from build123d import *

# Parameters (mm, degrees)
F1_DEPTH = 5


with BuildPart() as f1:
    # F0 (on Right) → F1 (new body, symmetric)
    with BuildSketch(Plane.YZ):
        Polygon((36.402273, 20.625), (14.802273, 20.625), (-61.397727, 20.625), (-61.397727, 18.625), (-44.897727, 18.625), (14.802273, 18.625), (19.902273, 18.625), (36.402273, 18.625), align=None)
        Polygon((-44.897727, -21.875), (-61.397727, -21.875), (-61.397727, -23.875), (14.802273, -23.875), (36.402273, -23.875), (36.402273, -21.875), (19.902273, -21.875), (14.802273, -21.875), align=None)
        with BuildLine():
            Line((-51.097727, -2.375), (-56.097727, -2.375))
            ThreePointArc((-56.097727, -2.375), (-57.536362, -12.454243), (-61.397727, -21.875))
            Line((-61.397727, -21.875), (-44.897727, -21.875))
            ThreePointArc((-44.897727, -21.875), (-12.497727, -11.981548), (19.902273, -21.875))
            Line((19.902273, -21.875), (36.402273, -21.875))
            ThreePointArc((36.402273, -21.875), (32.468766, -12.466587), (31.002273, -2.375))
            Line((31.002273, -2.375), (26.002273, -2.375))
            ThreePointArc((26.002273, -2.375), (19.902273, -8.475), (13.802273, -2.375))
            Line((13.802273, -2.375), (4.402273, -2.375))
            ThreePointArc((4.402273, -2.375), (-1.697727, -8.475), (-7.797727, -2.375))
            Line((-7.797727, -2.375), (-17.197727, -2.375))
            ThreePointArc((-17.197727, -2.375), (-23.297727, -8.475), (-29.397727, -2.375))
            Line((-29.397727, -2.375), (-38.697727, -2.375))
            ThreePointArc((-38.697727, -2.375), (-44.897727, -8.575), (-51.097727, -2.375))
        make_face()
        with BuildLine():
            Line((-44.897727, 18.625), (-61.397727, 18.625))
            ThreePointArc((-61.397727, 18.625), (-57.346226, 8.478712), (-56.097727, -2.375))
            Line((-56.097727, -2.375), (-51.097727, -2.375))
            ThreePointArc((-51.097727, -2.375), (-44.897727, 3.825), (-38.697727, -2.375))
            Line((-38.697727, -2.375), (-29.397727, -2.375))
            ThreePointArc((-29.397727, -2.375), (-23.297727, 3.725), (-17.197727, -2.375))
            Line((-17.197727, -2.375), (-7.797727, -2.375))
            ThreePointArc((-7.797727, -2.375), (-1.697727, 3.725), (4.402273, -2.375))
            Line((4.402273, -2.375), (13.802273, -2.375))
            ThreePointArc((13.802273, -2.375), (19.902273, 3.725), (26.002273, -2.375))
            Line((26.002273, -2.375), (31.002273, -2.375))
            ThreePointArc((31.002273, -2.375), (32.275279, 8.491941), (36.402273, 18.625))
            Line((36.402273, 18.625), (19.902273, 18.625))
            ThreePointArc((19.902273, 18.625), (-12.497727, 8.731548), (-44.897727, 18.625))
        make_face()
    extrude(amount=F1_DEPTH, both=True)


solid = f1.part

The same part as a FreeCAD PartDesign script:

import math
import FreeCAD as App
import Part
import Sketcher

doc = App.newDocument("Part")
body = doc.addObject("PartDesign::Body", "Body")

# Sketch on YZ plane
sketch1 = doc.addObject("Sketcher::SketchObject", "Sketch")
body.addObject(sketch1)
sketch1.AttachmentSupport = (doc.YZ_Plane, [""])
sketch1.MapMode = "FlatFace"
sketch1.addGeometry([
    Part.LineSegment(App.Vector(36.402273, 20.625, 0), App.Vector(-61.397727, 20.625, 0)),  # 0
    Part.LineSegment(App.Vector(-61.397727, 20.625, 0), App.Vector(-61.397727, 18.625, 0)),  # 1
    Part.ArcOfCircle(Part.Circle(App.Vector(-97.379807, -1.625001, 0), App.Vector(0, 0, 1), 41.288892), math.radians(-1.040816), math.radians(29.369946)),  # 2
    Part.ArcOfCircle(Part.Circle(App.Vector(-97.379803, -1.625, 0), App.Vector(0, 0, 1), 41.288889), math.radians(-29.369948), math.radians(-1.040818)),  # 3
    Part.LineSegment(App.Vector(-61.397727, -21.875, 0), App.Vector(-61.397727, -23.875, 0)),  # 4
    Part.LineSegment(App.Vector(-61.397727, -23.875, 0), App.Vector(36.402273, -23.875, 0)),  # 5
    Part.LineSegment(App.Vector(36.402273, -23.875, 0), App.Vector(36.402273, -21.875, 0)),  # 6
    Part.ArcOfCircle(Part.Circle(App.Vector(71.618941, -1.625, 0), App.Vector(0, 0, 1), 40.623592), math.radians(-178.942134), math.radians(-150.100589)),  # 7
    Part.ArcOfCircle(Part.Circle(App.Vector(71.618934, -1.624998, 0), App.Vector(0, 0, 1), 40.623584), math.radians(150.100586), math.radians(181.057867)),  # 8
    Part.LineSegment(App.Vector(36.402273, 18.625, 0), App.Vector(36.402273, 20.625, 0)),  # 9
    Part.LineSegment(App.Vector(-44.897727, 18.625, 0), App.Vector(19.902273, 18.625, 0)),  # 10
    Part.ArcOfCircle(Part.Circle(App.Vector(-12.497727, 66.731546, 0), App.Vector(0, 0, 1), 57.999998), math.radians(-123.960464), math.radians(-56.039536)),  # 11
    Part.Circle(App.Vector(-44.897727, -2.375, 0), App.Vector(0, 0, 1), 6.2),  # 12
    Part.Circle(App.Vector(-23.297727, -2.375, 0), App.Vector(0, 0, 1), 6.1),  # 13
    Part.Circle(App.Vector(-1.697727, -2.375, 0), App.Vector(0, 0, 1), 6.1),  # 14
    Part.Circle(App.Vector(19.902273, -2.375, 0), App.Vector(0, 0, 1), 6.1),  # 15
    Part.ArcOfCircle(Part.Circle(App.Vector(-12.497727, -69.981546, 0), App.Vector(0, 0, 1), 57.999998), math.radians(56.039536), math.radians(123.960464)),  # 16
    Part.LineSegment(App.Vector(19.902273, -21.875, 0), App.Vector(-44.897727, -21.875, 0)),  # 17
], False)
sketch1.addConstraint([
    Sketcher.Constraint("Coincident", 0, 2, 1, 1),
    Sketcher.Constraint("Coincident", 1, 2, 2, 2),
    Sketcher.Constraint("Tangent", 2, 1, 3, 2),
    Sketcher.Constraint("Coincident", 3, 1, 4, 1),
    Sketcher.Constraint("Coincident", 4, 2, 5, 1),
    Sketcher.Constraint("Coincident", 5, 2, 6, 1),
    Sketcher.Constraint("Coincident", 6, 2, 7, 2),
    Sketcher.Constraint("Tangent", 7, 1, 8, 2),
    Sketcher.Constraint("Coincident", 8, 1, 9, 1),
    Sketcher.Constraint("Coincident", 9, 2, 0, 1),
    Sketcher.Constraint("Coincident", 10, 1, 11, 1),
    Sketcher.Constraint("Coincident", 11, 2, 10, 2),
    Sketcher.Constraint("Coincident", 16, 1, 17, 1),
    Sketcher.Constraint("Coincident", 17, 2, 16, 2),
    Sketcher.Constraint("Horizontal", 0),
    Sketcher.Constraint("Vertical", 1),
    Sketcher.Constraint("Vertical", 4),
    Sketcher.Constraint("Horizontal", 5),
    Sketcher.Constraint("Vertical", 6),
    Sketcher.Constraint("Vertical", 9),
    Sketcher.Constraint("Horizontal", 10),
    Sketcher.Constraint("Horizontal", 17),
    Sketcher.Constraint("Equal", 13, 14),
    Sketcher.Constraint("Equal", 14, 15),
    Sketcher.Constraint("Equal", 11, 16),
    Sketcher.Constraint("Horizontal", 3, 3, 7, 3),
    Sketcher.Constraint("Horizontal", 3, 3, 8, 3),
    Sketcher.Constraint("Horizontal", 12, 3, 13, 3),
    Sketcher.Constraint("Horizontal", 13, 3, 14, 3),
    Sketcher.Constraint("Horizontal", 14, 3, 15, 3),
    Sketcher.Constraint("Horizontal", 15, 3, 2, 1),
    Sketcher.Constraint("Horizontal", 3, 1, 6, 2),
    Sketcher.Constraint("Horizontal", 2, 1, 7, 1),
    Sketcher.Constraint("Horizontal", 1, 2, 8, 1),
    Sketcher.Constraint("Horizontal", 8, 1, 10, 1),
    Sketcher.Constraint("Horizontal", 6, 2, 16, 1),
    Sketcher.Constraint("Vertical", 11, 3, 16, 3),
    Sketcher.Constraint("Vertical", 1, 2, 3, 1),
    Sketcher.Constraint("Vertical", 6, 2, 8, 1),
    Sketcher.Constraint("Vertical", 12, 3, 10, 1),
    Sketcher.Constraint("Vertical", 15, 3, 11, 2),
    Sketcher.Constraint("Vertical", 11, 2, 16, 1),
    Sketcher.Constraint("Equal", 1, 4),
    Sketcher.Constraint("Radius", 11, 57.999998),
    Sketcher.Constraint("Diameter", 12, 12.4),
    Sketcher.Constraint("Diameter", 13, 12.2),
    Sketcher.Constraint("DistanceY", 1, 2, 1, 1, 2.0),
    Sketcher.Constraint("DistanceX", 0, 2, 0, 1, 97.8),
    Sketcher.Constraint("DistanceX", 10, 1, 10, 2, 64.8),
    Sketcher.Constraint("DistanceY", 12, 3, 0, 2, 23.0),
    Sketcher.Constraint("DistanceX", 12, 3, 13, 3, 21.6),
    Sketcher.Constraint("DistanceX", 13, 3, 14, 3, 21.6),
    Sketcher.Constraint("DistanceX", 0, 2, 12, 3, 16.5),
    Sketcher.Constraint("DistanceX", 2, 1, 12, 3, 11.2),
    Sketcher.Constraint("DistanceY", 3, 1, 2, 1, 19.5),
    Sketcher.Constraint("DistanceX", 15, 3, 7, 1, 11.1),
    Sketcher.Constraint("DistanceY", 2, 3, -1, 1, 1.625001),
    Sketcher.Constraint("DistanceX", -1, 1, 7, 3, 71.618941),
])
pad1 = doc.addObject("PartDesign::Pad", "Pad")
body.addObject(pad1)
pad1.Profile = sketch1
pad1.Length = 10
pad1.Midplane = True

doc.recompute()
